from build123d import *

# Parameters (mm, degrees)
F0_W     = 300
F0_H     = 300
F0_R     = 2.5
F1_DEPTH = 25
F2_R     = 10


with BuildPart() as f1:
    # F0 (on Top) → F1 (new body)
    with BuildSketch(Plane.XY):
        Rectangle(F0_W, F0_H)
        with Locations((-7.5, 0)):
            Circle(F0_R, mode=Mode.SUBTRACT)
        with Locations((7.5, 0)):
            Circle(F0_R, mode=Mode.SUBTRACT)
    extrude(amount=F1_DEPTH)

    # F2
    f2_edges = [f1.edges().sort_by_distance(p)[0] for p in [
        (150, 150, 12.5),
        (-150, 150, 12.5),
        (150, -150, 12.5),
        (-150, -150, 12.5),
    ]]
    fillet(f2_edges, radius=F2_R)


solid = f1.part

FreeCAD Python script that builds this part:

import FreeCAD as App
import Part
import Sketcher

V = App.Vector
Q = App.Units.Quantity


def edges_at(feature, points):
    """Names of the edges that pass closest to the given points."""
    edges = feature.Shape.Edges
    near = lambda p: min(range(len(edges)), key=lambda i: edges[i].distToShape(Part.Vertex(*p))[0])
    return sorted({f"Edge{near(p) + 1}" for p in points})


def add_polygon(sketch, points):
    """Adds a closed chain of lines whose ends are joined by coincident constraints."""
    first, n = sketch.GeometryCount, len(points)
    for a, b in zip(points, points[1:] + points[:1]):
        sketch.addGeometry(Part.LineSegment(App.Vector(*a, 0), App.Vector(*b, 0)), False)
    for i in range(n):
        sketch.addConstraint(Sketcher.Constraint("Coincident", first + i, 2, first + (i + 1) % n, 1))

doc = App.newDocument("Part")
body = doc.addObject("PartDesign::Body", "Body")

# Sketch on XY plane
sketch1 = body.newObject("Sketcher::SketchObject", "Sketch")
sketch1.AttachmentSupport = (doc.getObject("XY_Plane"), [""])
sketch1.MapMode = "FlatFace"
add_polygon(sketch1, [(-150, 150), (-150, -150), (150, -150), (150, 150)])  # lines 0-3
sketch1.addGeometry(Part.Circle(V(-7.5, 0, 0), V(0, 0, 1), 2.5), False)  # 4
sketch1.addGeometry(Part.Circle(V(7.5, 0, 0), V(0, 0, 1), 2.5), False)  # 5
sketch1.addConstraint([
    Sketcher.Constraint("Vertical", 0),
    Sketcher.Constraint("Horizontal", 1),
    Sketcher.Constraint("Vertical", 2),
    Sketcher.Constraint("Horizontal", 3),
    Sketcher.Constraint("Equal", 4, 5),
    Sketcher.Constraint("Symmetric", 4, 3, 5, 3, -1, 1),
    Sketcher.Constraint("Symmetric", 0, 2, 2, 2, -1, 1),
    Sketcher.Constraint("PointOnObject", 4, 3, -1),
    Sketcher.Constraint("Equal", 3, 0),
    Sketcher.Constraint("Diameter", 4, Q("5 mm")),
    Sketcher.Constraint("DistanceX", 1, 1, 1, 2, Q("300 mm")),
    Sketcher.Constraint("DistanceX", 4, 3, 5, 3, Q("15 mm")),
])
pad1 = body.newObject("PartDesign::Pad", "Pad")
pad1.Profile = sketch1
pad1.Length = 25
doc.recompute()

fillet = body.newObject("PartDesign::Fillet", "Fillet")
fillet.Base = (pad1, edges_at(pad1, [
    (150, 150, 12.5),
    (-150, 150, 12.5),
    (150, -150, 12.5),
    (-150, -150, 12.5),
]))
fillet.Radius = 10

doc.recompute()
